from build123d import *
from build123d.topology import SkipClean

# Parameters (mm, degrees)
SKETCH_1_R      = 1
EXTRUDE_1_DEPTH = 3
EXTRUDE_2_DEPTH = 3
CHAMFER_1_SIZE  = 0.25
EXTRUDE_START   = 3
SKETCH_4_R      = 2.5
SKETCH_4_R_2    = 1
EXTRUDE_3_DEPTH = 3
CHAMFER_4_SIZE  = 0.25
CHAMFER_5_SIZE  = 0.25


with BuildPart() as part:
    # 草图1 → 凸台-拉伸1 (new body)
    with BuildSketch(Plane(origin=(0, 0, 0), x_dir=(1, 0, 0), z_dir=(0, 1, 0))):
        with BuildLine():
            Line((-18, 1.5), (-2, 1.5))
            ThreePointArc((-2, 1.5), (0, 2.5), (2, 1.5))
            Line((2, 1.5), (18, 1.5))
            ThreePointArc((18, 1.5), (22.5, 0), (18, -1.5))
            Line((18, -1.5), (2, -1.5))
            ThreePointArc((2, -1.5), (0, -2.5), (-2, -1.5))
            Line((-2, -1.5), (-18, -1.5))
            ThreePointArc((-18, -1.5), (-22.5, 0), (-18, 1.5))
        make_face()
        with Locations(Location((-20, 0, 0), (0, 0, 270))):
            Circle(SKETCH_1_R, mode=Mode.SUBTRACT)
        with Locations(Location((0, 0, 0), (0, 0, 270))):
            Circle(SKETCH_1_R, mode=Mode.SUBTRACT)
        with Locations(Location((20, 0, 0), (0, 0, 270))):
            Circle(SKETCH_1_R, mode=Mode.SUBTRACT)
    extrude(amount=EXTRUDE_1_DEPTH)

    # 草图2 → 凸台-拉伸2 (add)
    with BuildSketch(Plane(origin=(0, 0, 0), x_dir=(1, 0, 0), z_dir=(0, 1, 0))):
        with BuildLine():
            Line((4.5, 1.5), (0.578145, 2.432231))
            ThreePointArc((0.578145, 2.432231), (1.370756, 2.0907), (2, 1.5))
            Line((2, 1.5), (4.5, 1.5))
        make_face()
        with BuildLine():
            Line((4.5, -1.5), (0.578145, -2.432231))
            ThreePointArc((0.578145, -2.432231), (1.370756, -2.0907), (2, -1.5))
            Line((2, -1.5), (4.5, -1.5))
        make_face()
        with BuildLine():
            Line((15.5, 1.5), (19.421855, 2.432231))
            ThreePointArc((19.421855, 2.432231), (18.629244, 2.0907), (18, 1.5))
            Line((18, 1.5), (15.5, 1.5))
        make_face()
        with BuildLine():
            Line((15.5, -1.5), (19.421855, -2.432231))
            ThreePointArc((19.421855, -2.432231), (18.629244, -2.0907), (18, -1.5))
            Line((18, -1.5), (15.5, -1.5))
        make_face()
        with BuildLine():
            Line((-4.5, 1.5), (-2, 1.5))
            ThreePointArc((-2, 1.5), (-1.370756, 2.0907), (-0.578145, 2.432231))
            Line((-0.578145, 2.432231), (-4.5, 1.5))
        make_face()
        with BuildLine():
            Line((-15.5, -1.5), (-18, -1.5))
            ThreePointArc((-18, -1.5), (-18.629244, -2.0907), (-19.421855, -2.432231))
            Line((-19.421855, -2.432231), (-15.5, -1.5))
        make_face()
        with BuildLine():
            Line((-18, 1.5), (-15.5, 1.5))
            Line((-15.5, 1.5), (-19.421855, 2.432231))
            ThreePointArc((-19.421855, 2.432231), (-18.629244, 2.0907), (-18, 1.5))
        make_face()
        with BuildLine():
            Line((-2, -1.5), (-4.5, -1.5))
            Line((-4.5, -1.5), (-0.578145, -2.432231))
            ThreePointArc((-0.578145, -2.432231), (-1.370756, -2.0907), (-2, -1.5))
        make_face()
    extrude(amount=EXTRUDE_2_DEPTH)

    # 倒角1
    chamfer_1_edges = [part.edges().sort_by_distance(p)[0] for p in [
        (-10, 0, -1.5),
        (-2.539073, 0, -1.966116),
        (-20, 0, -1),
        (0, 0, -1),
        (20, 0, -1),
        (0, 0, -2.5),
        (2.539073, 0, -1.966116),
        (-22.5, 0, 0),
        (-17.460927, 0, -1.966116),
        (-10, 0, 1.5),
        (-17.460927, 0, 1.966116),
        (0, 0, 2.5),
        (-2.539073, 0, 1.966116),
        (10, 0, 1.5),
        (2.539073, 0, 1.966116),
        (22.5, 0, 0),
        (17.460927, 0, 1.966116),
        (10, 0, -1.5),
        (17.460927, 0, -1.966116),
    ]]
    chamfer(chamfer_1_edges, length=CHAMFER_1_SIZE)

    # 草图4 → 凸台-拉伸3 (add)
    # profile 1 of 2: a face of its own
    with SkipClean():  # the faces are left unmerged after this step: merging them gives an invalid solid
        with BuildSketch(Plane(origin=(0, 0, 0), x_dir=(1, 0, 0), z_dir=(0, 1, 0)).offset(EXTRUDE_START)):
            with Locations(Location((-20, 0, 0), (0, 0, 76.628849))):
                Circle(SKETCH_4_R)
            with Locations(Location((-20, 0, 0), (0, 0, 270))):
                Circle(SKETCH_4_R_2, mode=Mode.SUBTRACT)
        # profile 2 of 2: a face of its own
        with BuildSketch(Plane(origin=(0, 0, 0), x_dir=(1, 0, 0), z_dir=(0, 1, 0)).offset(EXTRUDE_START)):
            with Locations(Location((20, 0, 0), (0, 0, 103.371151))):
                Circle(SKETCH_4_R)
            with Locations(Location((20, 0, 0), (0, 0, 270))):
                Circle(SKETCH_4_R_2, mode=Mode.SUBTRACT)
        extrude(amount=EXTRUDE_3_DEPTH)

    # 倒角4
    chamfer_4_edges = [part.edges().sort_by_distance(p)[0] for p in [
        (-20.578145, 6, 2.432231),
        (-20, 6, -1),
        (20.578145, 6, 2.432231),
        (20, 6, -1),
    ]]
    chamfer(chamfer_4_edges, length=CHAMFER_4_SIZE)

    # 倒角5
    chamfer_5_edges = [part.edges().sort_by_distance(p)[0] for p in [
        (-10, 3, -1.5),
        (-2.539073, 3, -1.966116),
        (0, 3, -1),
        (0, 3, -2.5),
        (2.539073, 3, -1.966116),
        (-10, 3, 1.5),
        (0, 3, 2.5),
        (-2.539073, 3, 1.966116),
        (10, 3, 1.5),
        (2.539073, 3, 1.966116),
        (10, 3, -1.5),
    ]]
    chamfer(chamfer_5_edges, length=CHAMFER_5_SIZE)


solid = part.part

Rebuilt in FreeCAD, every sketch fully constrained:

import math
import FreeCAD as App
import Part
import Sketcher

V = App.Vector


def edges_at(feature, points):
    """Names of the edges that pass closest to the given points."""
    edges = feature.Shape.Edges
    near = lambda p: min(range(len(edges)), key=lambda i: edges[i].distToShape(Part.Vertex(*p))[0])
    return sorted({f"Edge{near(p) + 1}" for p in points})

doc = App.newDocument("Part")
body = doc.addObject("PartDesign::Body", "Body")

sketch1 = body.newObject("Sketcher::SketchObject", "Sketch")
sketch1.AttachmentSupport = (doc.getObject("XZ_Plane"), [""])
sketch1.MapMode = "FlatFace"
sketch1.addGeometry(Part.LineSegment(V(-2, -1.5, 0), V(-18, -1.5, 0)), False)
sketch1.addGeometry(Part.ArcOfCircle(Part.Circle(V(-20, 0, 0), V(0, 0, 1), 2.5), math.radians(37), math.radians(323)), False)
sketch1.addGeometry(Part.LineSegment(V(-18, 1.5, 0), V(-2, 1.5, 0)), False)
sketch1.addGeometry(Part.ArcOfCircle(Part.Circle(V(0, 0, 0), V(0, 0, 1), 2.5), math.radians(37), math.radians(143)), False)
sketch1.addGeometry(Part.LineSegment(V(2, 1.5, 0), V(18, 1.5, 0)), False)
sketch1.addGeometry(Part.ArcOfCircle(Part.Circle(V(20, 0, 0), V(0, 0, 1), 2.5), math.radians(-143), math.radians(143)), False)
sketch1.addGeometry(Part.LineSegment(V(18, -1.5, 0), V(2, -1.5, 0)), False)
sketch1.addGeometry(Part.ArcOfCircle(Part.Circle(V(0, 0, 0), V(0, 0, 1), 2.5), math.radians(-143), math.radians(-37)), False)
sketch1.addGeometry(Part.Circle(V(20, 0, 0), V(0, 0, 1), 1), False)
sketch1.addGeometry(Part.Circle(V(0, 0, 0), V(0, 0, 1), 1), False)
sketch1.addGeometry(Part.Circle(V(-20, 0, 0), V(0, 0, 1), 1), False)
sketch1.addConstraint(Sketcher.Constraint("Coincident", 0, 2, 1, 2))
sketch1.addConstraint(Sketcher.Constraint("Coincident", 1, 1, 2, 1))
sketch1.addConstraint(Sketcher.Constraint("Coincident", 2, 2, 3, 2))
sketch1.addConstraint(Sketcher.Constraint("Coincident", 3, 1, 4, 1))
sketch1.addConstraint(Sketcher.Constraint("Coincident", 4, 2, 5, 2))
sketch1.addConstraint(Sketcher.Constraint("Coincident", 5, 1, 6, 1))
sketch1.addConstraint(Sketcher.Constraint("Coincident", 6, 2, 7, 2))
sketch1.addConstraint(Sketcher.Constraint("Coincident", 7, 1, 0, 1))
sketch1.addConstraint(Sketcher.Constraint("Horizontal", 0))
sketch1.addConstraint(Sketcher.Constraint("Horizontal", 2))
sketch1.addConstraint(Sketcher.Constraint("Horizontal", 4))
sketch1.addConstraint(Sketcher.Constraint("Horizontal", 6))
sketch1.addConstraint(Sketcher.Constraint("Coincident", 3, 3, -1, 1))
sketch1.addConstraint(Sketcher.Constraint("Coincident", 7, 3, -1, 1))
sketch1.addConstraint(Sketcher.Constraint("Coincident", 9, 3, -1, 1))
sketch1.addConstraint(Sketcher.Constraint("Coincident", 8, 3, 5, 3))
sketch1.addConstraint(Sketcher.Constraint("Coincident", 10, 3, 1, 3))
sketch1.addConstraint(Sketcher.Constraint("Equal", 1, 3))
sketch1.addConstraint(Sketcher.Constraint("Equal", 3, 5))
sketch1.addConstraint(Sketcher.Constraint("Equal", 5, 7))
sketch1.addConstraint(Sketcher.Constraint("Equal", 8, 9))
sketch1.addConstraint(Sketcher.Constraint("Equal", 9, 10))
sketch1.addConstraint(Sketcher.Constraint("Symmetric", 1, 3, 5, 3, -1, 1))
sketch1.addConstraint(Sketcher.Constraint("Symmetric", 1, 1, 4, 2, -2))
sketch1.addConstraint(Sketcher.Constraint("Horizontal", 0, 2, 5, 1))
sketch1.addConstraint(Sketcher.Constraint("Vertical", 0, 2, 1, 1))
sketch1.addConstraint(Sketcher.Constraint("Diameter", 8, 2.0))
sketch1.addConstraint(Sketcher.Constraint("Radius", 1, 2.5))
sketch1.addConstraint(Sketcher.Constraint("DistanceX", 0, 2, 0, 1, 16.0))
sketch1.addConstraint(Sketcher.Constraint("DistanceX", 1, 3, -1, 1, 20.0))
pad1 = body.newObject("PartDesign::Pad", "Pad")
pad1.Profile = sketch1
pad1.Length = 3
pad1.Reversed = True

sketch2 = body.newObject("Sketcher::SketchObject", "Sketch001")
sketch2.AttachmentSupport = (doc.getObject("XZ_Plane"), [""])
sketch2.MapMode = "FlatFace"
sketch2.addGeometry(Part.LineSegment(V(4.5, -1.5, 0), V(0.6, -2.4, 0)), False)
sketch2.addGeometry(Part.ArcOfCircle(Part.Circle(V(0, 0, 0), V(0, 0, 1), 2.5), math.radians(-77), math.radians(-37)), False)
sketch2.addGeometry(Part.LineSegment(V(2, -1.5, 0), V(4.5, -1.5, 0)), False)
sketch2.addGeometry(Part.LineSegment(V(0.6, 2.4, 0), V(4.5, 1.5, 0)), False)
sketch2.addGeometry(Part.LineSegment(V(4.5, 1.5, 0), V(2, 1.5, 0)), False)
sketch2.addGeometry(Part.ArcOfCircle(Part.Circle(V(0, 0, 0), V(0, 0, 1), 2.5), math.radians(37), math.radians(77)), False)
sketch2.addGeometry(Part.LineSegment(V(19.4, -2.4, 0), V(15.5, -1.5, 0)), False)
sketch2.addGeometry(Part.LineSegment(V(15.5, -1.5, 0), V(18, -1.5, 0)), False)
sketch2.addGeometry(Part.ArcOfCircle(Part.Circle(V(20, 0, 0), V(0, 0, 1), 2.5), math.radians(-143), math.radians(-103)), False)
sketch2.addGeometry(Part.LineSegment(V(15.5, 1.5, 0), V(19.4, 2.4, 0)), False)
sketch2.addGeometry(Part.ArcOfCircle(Part.Circle(V(20, 0, 0), V(0, 0, 1), 2.5), math.radians(103), math.radians(143)), False)
sketch2.addGeometry(Part.LineSegment(V(18, 1.5, 0), V(15.5, 1.5, 0)), False)
sketch2.addGeometry(Part.LineSegment(V(-4.5, -1.5, 0), V(-2, -1.5, 0)), False)
sketch2.addGeometry(Part.ArcOfCircle(Part.Circle(V(0, 0, 0), V(0, 0, 1), 2.5), math.radians(-143), math.radians(-103)), False)
sketch2.addGeometry(Part.LineSegment(V(-0.6, -2.4, 0), V(-4.5, -1.5, 0)), False)
sketch2.addGeometry(Part.LineSegment(V(-15.5, 1.5, 0), V(-18, 1.5, 0)), False)
sketch2.addGeometry(Part.ArcOfCircle(Part.Circle(V(-20, 0, 0), V(0, 0, 1), 2.5), math.radians(37), math.radians(77)), False)
sketch2.addGeometry(Part.LineSegment(V(-19.4, 2.4, 0), V(-15.5, 1.5, 0)), False)
sketch2.addGeometry(Part.LineSegment(V(-18, -1.5, 0), V(-15.5, -1.5, 0)), False)
sketch2.addGeometry(Part.LineSegment(V(-15.5, -1.5, 0), V(-19.4, -2.4, 0)), False)
sketch2.addGeometry(Part.ArcOfCircle(Part.Circle(V(-20, 0, 0), V(0, 0, 1), 2.5), math.radians(-77), math.radians(-37)), False)
sketch2.addGeometry(Part.LineSegment(V(-2, 1.5, 0), V(-4.5, 1.5, 0)), False)
sketch2.addGeometry(Part.LineSegment(V(-4.5, 1.5, 0), V(-0.6, 2.4, 0)), False)
sketch2.addGeometry(Part.ArcOfCircle(Part.Circle(V(0, 0, 0), V(0, 0, 1), 2.5), math.radians(103), math.radians(143)), False)
sketch2.addConstraint(Sketcher.Constraint("Tangent", 0, 2, 1, 1))
sketch2.addConstraint(Sketcher.Constraint("Coincident", 1, 2, 2, 1))
sketch2.addConstraint(Sketcher.Constraint("Coincident", 2, 2, 0, 1))
sketch2.addConstraint(Sketcher.Constraint("Coincident", 3, 2, 4, 1))
sketch2.addConstraint(Sketcher.Constraint("Coincident", 4, 2, 5, 1))
sketch2.addConstraint(Sketcher.Constraint("Tangent", 5, 2, 3, 1))
sketch2.addConstraint(Sketcher.Constraint("Coincident", 6, 2, 7, 1))
sketch2.addConstraint(Sketcher.Constraint("Coincident", 7, 2, 8, 1))
sketch2.addConstraint(Sketcher.Constraint("Tangent", 8, 2, 6, 1))
sketch2.addConstraint(Sketcher.Constraint("Tangent", 9, 2, 10, 1))
sketch2.addConstraint(Sketcher.Constraint("Coincident", 10, 2, 11, 1))
sketch2.addConstraint(Sketcher.Constraint("Coincident", 11, 2, 9, 1))
sketch2.addConstraint(Sketcher.Constraint("Coincident", 12, 2, 13, 1))
sketch2.addConstraint(Sketcher.Constraint("Tangent", 13, 2, 14, 1))
sketch2.addConstraint(Sketcher.Constraint("Coincident", 14, 2, 12, 1))
sketch2.addConstraint(Sketcher.Constraint("Coincident", 15, 2, 16, 1))
sketch2.addConstraint(Sketcher.Constraint("Tangent", 16, 2, 17, 1))
sketch2.addConstraint(Sketcher.Constraint("Coincident", 17, 2, 15, 1))
sketch2.addConstraint(Sketcher.Constraint("Coincident", 18, 2, 19, 1))
sketch2.addConstraint(Sketcher.Constraint("Tangent", 19, 2, 20, 1))
sketch2.addConstraint(Sketcher.Constraint("Coincident", 20, 2, 18, 1))
sketch2.addConstraint(Sketcher.Constraint("Coincident", 21, 2, 22, 1))
sketch2.addConstraint(Sketcher.Constraint("Tangent", 22, 2, 23, 1))
sketch2.addConstraint(Sketcher.Constraint("Coincident", 23, 2, 21, 1))
sketch2.addConstraint(Sketcher.Constraint("Horizontal", 2))
sketch2.addConstraint(Sketcher.Constraint("Horizontal", 4))
sketch2.addConstraint(Sketcher.Constraint("Horizontal", 7))
sketch2.addConstraint(Sketcher.Constraint("Horizontal", 11))
sketch2.addConstraint(Sketcher.Constraint("Horizontal", 12))
sketch2.addConstraint(Sketcher.Constraint("Horizontal", 15))
sketch2.addConstraint(Sketcher.Constraint("Horizontal", 18))
sketch2.addConstraint(Sketcher.Constraint("Horizontal", 21))
sketch2.addConstraint(Sketcher.Constraint("Coincident", 1, 3, -1, 1))
sketch2.addConstraint(Sketcher.Constraint("Coincident", 5, 3, -1, 1))
sketch2.addConstraint(Sketcher.Constraint("Coincident", 13, 3, -1, 1))
sketch2.addConstraint(Sketcher.Constraint("Coincident", 23, 3, -1, 1))
sketch2.addConstraint(Sketcher.Constraint("Coincident", 10, 3, 8, 3))
sketch2.addConstraint(Sketcher.Constraint("Coincident", 20, 3, 16, 3))
sketch2.addConstraint(Sketcher.Constraint("Equal", 1, 5))
sketch2.addConstraint(Sketcher.Constraint("Equal", 5, 8))
sketch2.addConstraint(Sketcher.Constraint("Equal", 8, 10))
sketch2.addConstraint(Sketcher.Constraint("Equal", 10, 13))
sketch2.addConstraint(Sketcher.Constraint("Equal", 13, 16))
sketch2.addConstraint(Sketcher.Constraint("Equal", 16, 20))
sketch2.addConstraint(Sketcher.Constraint("Equal", 20, 23))
sketch2.addConstraint(Sketcher.Constraint("Symmetric", 8, 3, 16, 3, -1, 1))
sketch2.addConstraint(Sketcher.Constraint("Symmetric", 3, 2, 14, 2, -1, 1))
sketch2.addConstraint(Sketcher.Constraint("Symmetric", 6, 2, 17, 2, -1, 1))
sketch2.addConstraint(Sketcher.Constraint("Symmetric", 11, 2, 18, 2, -1, 1))
sketch2.addConstraint(Sketcher.Constraint("Symmetric", 2, 2, 21, 2, -1, 1))
sketch2.addConstraint(Sketcher.Constraint("Symmetric", 2, 2, 14, 2, -2))
sketch2.addConstraint(Sketcher.Constraint("Symmetric", 10, 2, 15, 2, -2))
sketch2.addConstraint(Sketcher.Constraint("Parallel", 3, 6))
sketch2.addConstraint(Sketcher.Constraint("Parallel", 0, 9))
sketch2.addConstraint(Sketcher.Constraint("Horizontal", 2, 2, 6, 2))
sketch2.addConstraint(Sketcher.Constraint("DistanceX", 2, 1, 2, 2, 2.5))
sketch2.addConstraint(Sketcher.Constraint("DistanceX", -1, 1, 8, 3, 20.000002))
sketch2.addConstraint(Sketcher.Constraint("DistanceX", -1, 1, 1, 2, 2.0))
sketch2.addConstraint(Sketcher.Constraint("DistanceY", 2, 2, 3, 2, 3.0))
pad2 = body.newObject("PartDesign::Pad", "Pad001")
pad2.Profile = sketch2
pad2.Length = 3
pad2.Reversed = True
doc.recompute()

chamfer = body.newObject("PartDesign::Chamfer", "Chamfer")
chamfer.Base = (pad2, edges_at(pad2, [
    (-10, 0, -1.5),
    (-2.539, 0, -1.966),
    (-20, 0, -1),
    (0, 0, -1),
    (20, 0, -1),
    (0, 0, -2.5),
    (2.539, 0, -1.966),
    (-22.5, 0, 0),
    (-17.461, 0, -1.966),
    (-10, 0, 1.5),
    (-17.461, 0, 1.966),
    (0, 0, 2.5),
    (-2.539, 0, 1.966),
    (10, 0, 1.5),
    (2.539, 0, 1.966),
    (22.5, 0, 0),
    (17.461, 0, 1.966),
    (10, 0, -1.5),
    (17.461, 0, -1.966),
]))
chamfer.Size = 0.25

sketch3 = body.newObject("Sketcher::SketchObject", "Sketch002")
sketch3.AttachmentSupport = (doc.getObject("XZ_Plane"), [""])
sketch3.MapMode = "FlatFace"
sketch3.AttachmentOffset = App.Placement(V(0, 0, -3), App.Rotation())
sketch3.addGeometry(Part.Circle(V(-20, 0, 0), V(0, 0, 1), 2.5), False)
sketch3.addGeometry(Part.Circle(V(-20, 0, 0), V(0, 0, 1), 1), False)
sketch3.addGeometry(Part.Circle(V(20, 0, 0), V(0, 0, 1), 2.5), False)
sketch3.addGeometry(Part.Circle(V(20, 0, 0), V(0, 0, 1), 1), False)
sketch3.addConstraint(Sketcher.Constraint("Coincident", 1, 3, 0, 3))
sketch3.addConstraint(Sketcher.Constraint("Coincident", 3, 3, 2, 3))
sketch3.addConstraint(Sketcher.Constraint("Equal", 0, 2))
sketch3.addConstraint(Sketcher.Constraint("Equal", 1, 3))
sketch3.addConstraint(Sketcher.Constraint("Symmetric", 0, 3, 2, 3, -1, 1))
sketch3.addConstraint(Sketcher.Constraint("PointOnObject", 0, 3, -1))
sketch3.addConstraint(Sketcher.Constraint("Diameter", 0, 5.0))
sketch3.addConstraint(Sketcher.Constraint("Diameter", 1, 2.0))
sketch3.addConstraint(Sketcher.Constraint("DistanceX", 0, 3, -1, 1, 20.0))
pad3 = body.newObject("PartDesign::Pad", "Pad002")
pad3.Profile = sketch3
pad3.Length = 3
pad3.Reversed = True
doc.recompute()

chamfer2 = body.newObject("PartDesign::Chamfer", "Chamfer001")
chamfer2.Base = (pad3, edges_at(pad3, [
    (-20.578, 6, 2.432),
    (-20, 6, -1),
    (20.578, 6, 2.432),
    (20, 6, -1),
]))
chamfer2.Size = 0.25
doc.recompute()

chamfer3 = body.newObject("PartDesign::Chamfer", "Chamfer002")
chamfer3.Base = (chamfer2, edges_at(chamfer2, [
    (-10, 3, -1.5),
    (-2.539, 3, -1.966),
    (0, 3, -1),
    (0, 3, -2.5),
    (2.539, 3, -1.966),
    (-10, 3, 1.5),
    (0, 3, 2.5),
    (-2.539, 3, 1.966),
    (10, 3, 1.5),
    (2.539, 3, 1.966),
    (10, 3, -1.5),
]))
chamfer3.Size = 0.25

doc.recompute()
